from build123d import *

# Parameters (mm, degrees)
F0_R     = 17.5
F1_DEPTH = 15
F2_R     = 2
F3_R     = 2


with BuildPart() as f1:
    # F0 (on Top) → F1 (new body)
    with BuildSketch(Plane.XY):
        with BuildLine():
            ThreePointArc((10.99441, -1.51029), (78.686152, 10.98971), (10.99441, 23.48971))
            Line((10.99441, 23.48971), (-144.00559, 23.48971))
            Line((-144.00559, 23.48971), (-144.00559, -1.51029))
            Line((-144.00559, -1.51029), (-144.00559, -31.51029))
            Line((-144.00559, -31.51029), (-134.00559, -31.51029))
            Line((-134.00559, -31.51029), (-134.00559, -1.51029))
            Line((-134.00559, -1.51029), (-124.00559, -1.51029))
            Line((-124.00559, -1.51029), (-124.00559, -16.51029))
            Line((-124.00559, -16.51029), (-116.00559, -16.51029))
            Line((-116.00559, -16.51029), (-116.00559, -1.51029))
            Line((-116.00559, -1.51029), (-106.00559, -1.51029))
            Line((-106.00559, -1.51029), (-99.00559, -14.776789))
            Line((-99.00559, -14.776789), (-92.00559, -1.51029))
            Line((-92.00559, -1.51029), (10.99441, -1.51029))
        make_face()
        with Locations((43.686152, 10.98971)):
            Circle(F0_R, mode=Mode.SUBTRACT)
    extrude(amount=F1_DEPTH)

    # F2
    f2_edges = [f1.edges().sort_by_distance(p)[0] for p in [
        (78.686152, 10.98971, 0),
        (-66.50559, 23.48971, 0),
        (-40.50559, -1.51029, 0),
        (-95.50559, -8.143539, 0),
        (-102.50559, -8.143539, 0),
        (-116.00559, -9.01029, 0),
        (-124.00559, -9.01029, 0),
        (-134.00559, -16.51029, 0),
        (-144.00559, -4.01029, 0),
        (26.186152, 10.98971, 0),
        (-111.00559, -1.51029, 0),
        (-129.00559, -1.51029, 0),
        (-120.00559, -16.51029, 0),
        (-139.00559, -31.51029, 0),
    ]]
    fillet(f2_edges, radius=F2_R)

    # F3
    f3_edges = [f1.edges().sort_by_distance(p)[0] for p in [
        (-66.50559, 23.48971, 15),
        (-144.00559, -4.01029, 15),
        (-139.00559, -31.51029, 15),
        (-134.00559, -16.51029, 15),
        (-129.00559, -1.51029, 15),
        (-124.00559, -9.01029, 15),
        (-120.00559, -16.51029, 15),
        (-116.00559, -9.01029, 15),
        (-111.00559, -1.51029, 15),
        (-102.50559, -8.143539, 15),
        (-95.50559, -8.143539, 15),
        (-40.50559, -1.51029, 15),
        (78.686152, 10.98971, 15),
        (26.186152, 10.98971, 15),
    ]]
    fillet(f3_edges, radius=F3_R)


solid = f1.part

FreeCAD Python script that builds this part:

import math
import FreeCAD as App
import Part
import Sketcher
from FreeCAD import Vector


def edges_at(feature, points):
    """Names of the edges that pass closest to the given points."""
    edges = feature.Shape.Edges
    near = lambda p: min(range(len(edges)), key=lambda i: edges[i].distToShape(Part.Vertex(*p))[0])
    return sorted({f"Edge{near(p) + 1}" for p in points})

doc = App.newDocument("Part")
params = doc.addObject("Spreadsheet::Sheet", "Params")
for row, (alias, value) in enumerate([
    ("sketch1_diameter", "35 mm"),
    ("sketch1_radius", "35 mm"),
    ("sketch1_width", "155 mm"),
    ("sketch1_width2", "10 mm"),
    ("sketch1_width3", "8 mm"),
    ("pad1_length", "15 mm"),
    ("fillet_radius", "2 mm"),
    ("fillet2_radius", "2 mm"),
], start=1):
    params.set(f"A{row}", alias)
    params.set(f"B{row}", "=" + value)
    params.setAlias(f"B{row}", alias)

body = doc.addObject("PartDesign::Body", "Body")

sketch1 = body.newObject("Sketcher::SketchObject", "Sketch")
sketch1.AttachmentSupport = (doc.getObject("XY_Plane"), [""])
sketch1.MapMode = "FlatFace"
sketch1.addGeometry(Part.ArcOfCircle(Part.Circle(Vector(43.686152, 10.98971, 0), Vector(0, 0, 1), 35), math.radians(-159.075168), math.radians(159.075168)), False)
sketch1.addGeometry(Part.LineSegment(Vector(10.99441, 23.48971, 0), Vector(-144.00559, 23.48971, 0)), False)
sketch1.addGeometry(Part.LineSegment(Vector(-144.00559, 23.48971, 0), Vector(-144.00559, -31.51029, 0)), False)
sketch1.addGeometry(Part.LineSegment(Vector(-144.00559, -31.51029, 0), Vector(-134.00559, -31.51029, 0)), False)
sketch1.addGeometry(Part.LineSegment(Vector(-134.00559, -31.51029, 0), Vector(-134.00559, -1.51029, 0)), False)
sketch1.addGeometry(Part.LineSegment(Vector(-134.00559, -1.51029, 0), Vector(-124.00559, -1.51029, 0)), False)
sketch1.addGeometry(Part.LineSegment(Vector(-124.00559, -1.51029, 0), Vector(-124.00559, -16.51029, 0)), False)
sketch1.addGeometry(Part.LineSegment(Vector(-124.00559, -16.51029, 0), Vector(-116.00559, -16.51029, 0)), False)
sketch1.addGeometry(Part.LineSegment(Vector(-116.00559, -16.51029, 0), Vector(-116.00559, -1.51029, 0)), False)
sketch1.addGeometry(Part.LineSegment(Vector(-116.00559, -1.51029, 0), Vector(-106.00559, -1.51029, 0)), False)
sketch1.addGeometry(Part.LineSegment(Vector(-106.00559, -1.51029, 0), Vector(-99.00559, -14.776789, 0)), False)
sketch1.addGeometry(Part.LineSegment(Vector(-99.00559, -14.776789, 0), Vector(-92.00559, -1.51029, 0)), False)
sketch1.addGeometry(Part.LineSegment(Vector(-92.00559, -1.51029, 0), Vector(10.99441, -1.51029, 0)), False)
sketch1.addGeometry(Part.Circle(Vector(43.686152, 10.98971, 0), Vector(0, 0, 1), 17.5), False)
sketch1.addConstraint(Sketcher.Constraint("Coincident", 0, 2, 1, 1))
sketch1.addConstraint(Sketcher.Constraint("Coincident", 1, 2, 2, 1))
sketch1.addConstraint(Sketcher.Constraint("Coincident", 2, 2, 3, 1))
sketch1.addConstraint(Sketcher.Constraint("Coincident", 3, 2, 4, 1))
sketch1.addConstraint(Sketcher.Constraint("Coincident", 4, 2, 5, 1))
sketch1.addConstraint(Sketcher.Constraint("Coincident", 5, 2, 6, 1))
sketch1.addConstraint(Sketcher.Constraint("Coincident", 6, 2, 7, 1))
sketch1.addConstraint(Sketcher.Constraint("Coincident", 7, 2, 8, 1))
sketch1.addConstraint(Sketcher.Constraint("Coincident", 8, 2, 9, 1))
sketch1.addConstraint(Sketcher.Constraint("Coincident", 9, 2, 10, 1))
sketch1.addConstraint(Sketcher.Constraint("Coincident", 10, 2, 11, 1))
sketch1.addConstraint(Sketcher.Constraint("Coincident", 11, 2, 12, 1))
sketch1.addConstraint(Sketcher.Constraint("Coincident", 12, 2, 0, 1))
sketch1.addConstraint(Sketcher.Constraint("Horizontal", 1))
sketch1.addConstraint(Sketcher.Constraint("Vertical", 2))
sketch1.addConstraint(Sketcher.Constraint("Horizontal", 3))
sketch1.addConstraint(Sketcher.Constraint("Vertical", 4))
sketch1.addConstraint(Sketcher.Constraint("Horizontal", 5))
sketch1.addConstraint(Sketcher.Constraint("Vertical", 6))
sketch1.addConstraint(Sketcher.Constraint("Horizontal", 7))
sketch1.addConstraint(Sketcher.Constraint("Vertical", 8))
sketch1.addConstraint(Sketcher.Constraint("Horizontal", 9))
sketch1.addConstraint(Sketcher.Constraint("Horizontal", 12))
sketch1.addConstraint(Sketcher.Constraint("Coincident", 13, 3, 0, 3))
sketch1.addConstraint(Sketcher.Constraint("Horizontal", 5, 2, 8, 2))
sketch1.addConstraint(Sketcher.Constraint("Horizontal", 9, 2, 11, 2))
sketch1.addConstraint(Sketcher.Constraint("Vertical", 0, 2, 12, 2))
sketch1.addConstraint(Sketcher.Constraint("Equal", 3, 5))
sketch1.addConstraint(Sketcher.Constraint("Equal", 5, 9))
sketch1.addConstraint(Sketcher.Constraint("Equal", 10, 11))
sketch1.addConstraint(Sketcher.Constraint("Diameter", 13, 35.0))
sketch1.addConstraint(Sketcher.Constraint("Radius", 0, 35.0))
sketch1.addConstraint(Sketcher.Constraint("DistanceX", 1, 2, 1, 1, 155.0))
sketch1.addConstraint(Sketcher.Constraint("DistanceX", 3, 1, 3, 2, 10.0))
sketch1.addConstraint(Sketcher.Constraint("DistanceX", 7, 1, 7, 2, 8.0))
sketch1.addConstraint(Sketcher.Constraint("DistanceX", 12, 1, 12, 2, 103.0))
sketch1.addConstraint(Sketcher.Constraint("DistanceY", 2, 2, 2, 1, 55.0))
sketch1.addConstraint(Sketcher.Constraint("DistanceY", 4, 1, 4, 2, 30.0))
sketch1.addConstraint(Sketcher.Constraint("DistanceY", 6, 2, 6, 1, 15.0))
sketch1.addConstraint(Sketcher.Constraint("Distance", 10, 15.0))
sketch1.addConstraint(Sketcher.Constraint("DistanceY", -1, 1, 0, 3, 10.98971))
sketch1.addConstraint(Sketcher.Constraint("DistanceX", -1, 1, 0, 2, 10.99441))
sketch1.setExpression("Constraints[30]", "Params.sketch1_diameter")
sketch1.setExpression("Constraints[31]", "Params.sketch1_radius")
sketch1.setExpression("Constraints[32]", "Params.sketch1_width")
sketch1.setExpression("Constraints[33]", "Params.sketch1_width2")
sketch1.setExpression("Constraints[34]", "Params.sketch1_width3")
pad1 = body.newObject("PartDesign::Pad", "Pad")
pad1.Profile = sketch1
pad1.setExpression("Length", "Params.pad1_length")
doc.recompute()

fillet = body.newObject("PartDesign::Fillet", "Fillet")
fillet.Base = (pad1, edges_at(pad1, [
    (78.686, 10.99, 0),
    (-66.506, 23.49, 0),
    (-40.506, -1.51, 0),
    (-95.506, -8.144, 0),
    (-102.506, -8.144, 0),
    (-116.006, -9.01, 0),
    (-124.006, -9.01, 0),
    (-134.006, -16.51, 0),
    (-144.006, -4.01, 0),
    (26.186, 10.99, 0),
    (-111.006, -1.51, 0),
    (-129.006, -1.51, 0),
    (-120.006, -16.51, 0),
    (-139.006, -31.51, 0),
]))
fillet.setExpression("Radius", "Params.fillet_radius")
doc.recompute()

fillet2 = body.newObject("PartDesign::Fillet", "Fillet001")
fillet2.Base = (fillet, edges_at(fillet, [
    (-66.506, 23.49, 15),
    (-144.006, -4.01, 15),
    (-139.006, -31.51, 15),
    (-134.006, -16.51, 15),
    (-129.006, -1.51, 15),
    (-124.006, -9.01, 15),
    (-120.006, -16.51, 15),
    (-116.006, -9.01, 15),
    (-111.006, -1.51, 15),
    (-102.506, -8.144, 15),
    (-95.506, -8.144, 15),
    (-40.506, -1.51, 15),
    (78.686, 10.99, 15),
    (26.186, 10.99, 15),
]))
fillet2.setExpression("Radius", "Params.fillet2_radius")

doc.recompute()
